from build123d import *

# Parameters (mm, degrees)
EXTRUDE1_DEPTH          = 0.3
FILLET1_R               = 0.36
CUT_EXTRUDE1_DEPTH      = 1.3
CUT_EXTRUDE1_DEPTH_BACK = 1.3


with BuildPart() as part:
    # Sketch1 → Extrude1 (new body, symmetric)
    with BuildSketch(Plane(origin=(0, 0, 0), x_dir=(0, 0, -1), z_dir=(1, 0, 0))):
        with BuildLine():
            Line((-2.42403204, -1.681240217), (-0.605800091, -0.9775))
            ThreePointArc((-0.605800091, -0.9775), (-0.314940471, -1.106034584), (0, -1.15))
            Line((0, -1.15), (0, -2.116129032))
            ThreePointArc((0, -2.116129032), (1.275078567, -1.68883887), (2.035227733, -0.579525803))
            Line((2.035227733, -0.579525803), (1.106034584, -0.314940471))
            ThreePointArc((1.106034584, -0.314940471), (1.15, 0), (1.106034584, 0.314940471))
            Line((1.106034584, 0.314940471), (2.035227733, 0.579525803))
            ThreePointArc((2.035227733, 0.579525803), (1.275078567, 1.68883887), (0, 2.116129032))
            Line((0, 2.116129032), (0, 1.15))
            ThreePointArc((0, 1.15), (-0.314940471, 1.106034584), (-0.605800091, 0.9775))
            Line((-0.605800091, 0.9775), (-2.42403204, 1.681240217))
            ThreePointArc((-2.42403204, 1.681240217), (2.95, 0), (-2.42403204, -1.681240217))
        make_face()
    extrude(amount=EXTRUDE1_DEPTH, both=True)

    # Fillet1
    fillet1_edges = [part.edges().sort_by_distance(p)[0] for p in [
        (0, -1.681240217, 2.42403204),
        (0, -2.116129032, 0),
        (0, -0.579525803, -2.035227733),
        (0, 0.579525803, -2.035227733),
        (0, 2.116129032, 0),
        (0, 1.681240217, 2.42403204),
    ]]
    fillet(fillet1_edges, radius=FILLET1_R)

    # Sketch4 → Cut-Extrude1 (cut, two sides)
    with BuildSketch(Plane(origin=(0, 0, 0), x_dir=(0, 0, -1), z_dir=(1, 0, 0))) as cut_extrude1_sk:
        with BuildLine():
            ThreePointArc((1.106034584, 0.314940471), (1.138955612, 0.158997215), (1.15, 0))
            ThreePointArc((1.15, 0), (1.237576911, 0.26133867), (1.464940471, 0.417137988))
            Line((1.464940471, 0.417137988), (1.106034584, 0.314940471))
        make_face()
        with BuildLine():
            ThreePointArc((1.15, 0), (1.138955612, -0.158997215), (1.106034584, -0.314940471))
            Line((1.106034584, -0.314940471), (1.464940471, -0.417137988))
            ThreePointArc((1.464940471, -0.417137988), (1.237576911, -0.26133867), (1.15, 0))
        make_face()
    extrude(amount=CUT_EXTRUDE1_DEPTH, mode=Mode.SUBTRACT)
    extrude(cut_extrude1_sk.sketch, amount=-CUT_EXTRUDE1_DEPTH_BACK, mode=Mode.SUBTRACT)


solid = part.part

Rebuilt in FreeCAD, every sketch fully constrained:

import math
import FreeCAD as App
import Part
import Sketcher

V = App.Vector


def edges_at(feature, points):
    """Names of the edges that pass closest to the given points."""
    edges = feature.Shape.Edges
    near = lambda p: min(range(len(edges)), key=lambda i: edges[i].distToShape(Part.Vertex(*p))[0])
    return sorted({f"Edge{near(p) + 1}" for p in points})

doc = App.newDocument("Part")
params = doc.addObject("Spreadsheet::Sheet", "Params")
for row, (alias, value) in enumerate([
    ("sketch1_radius", "2.95 mm"),
    ("sketch1_radius2", "1.15 mm"),
    ("pad1_length", "0.6 mm"),
    ("fillet_radius", "0.36 mm"),
    ("sketch2_radius", "1.15 mm"),
], start=1):
    params.set(f"A{row}", alias)
    params.set(f"B{row}", "=" + value)
    params.setAlias(f"B{row}", alias)

body = doc.addObject("PartDesign::Body", "Body")

sketch1 = body.newObject("Sketcher::SketchObject", "Sketch")
sketch1.AttachmentSupport = (doc.getObject("YZ_Plane"), [""])
sketch1.MapMode = "FlatFace"
sketch1.addGeometry([
    Part.LineSegment(V(-1, 0.6, 0), V(-1.7, 2.4, 0)),
    Part.ArcOfCircle(Part.Circle(V(0, 0, 0), V(0, 0, 1), 3), math.radians(125), math.radians(415)),
    Part.LineSegment(V(1.7, 2.4, 0), V(1, 0.6, 0)),
    Part.ArcOfCircle(Part.Circle(V(0, 0, 0), V(0, 0, 1), 1.1), math.radians(0), math.radians(32)),
    Part.LineSegment(V(1.1, 0, 0), V(2.1, 0, 0)),
    Part.ArcOfCircle(Part.Circle(V(0, 0, 0), V(0, 0, 1), 2.1), math.radians(-74), math.radians(0)),
    Part.LineSegment(V(0.6, -2, 0), V(0.3, -1.1, 0)),
    Part.ArcOfCircle(Part.Circle(V(0, 0, 0), V(0, 0, 1), 1.2), math.radians(-106), math.radians(-74)),
    Part.LineSegment(V(-0.3, -1.1, 0), V(-0.6, -2, 0)),
    Part.ArcOfCircle(Part.Circle(V(0, 0, 0), V(0, 0, 1), 2.1), math.radians(180), math.radians(254)),
    Part.LineSegment(V(-2.1, 0, 0), V(-1.1, 0, 0)),
    Part.ArcOfCircle(Part.Circle(V(0, 0, 0), V(0, 0, 1), 1.1), math.radians(148), math.radians(180)),
], False)
sketch1.addConstraint([
    Sketcher.Constraint("Coincident", 0, 2, 1, 1),
    Sketcher.Constraint("Coincident", 1, 2, 2, 1),
    Sketcher.Constraint("Coincident", 2, 2, 3, 2),
    Sketcher.Constraint("Coincident", 3, 1, 4, 1),
    Sketcher.Constraint("Coincident", 4, 2, 5, 2),
    Sketcher.Constraint("Coincident", 5, 1, 6, 1),
    Sketcher.Constraint("Coincident", 6, 2, 7, 2),
    Sketcher.Constraint("Coincident", 7, 1, 8, 1),
    Sketcher.Constraint("Coincident", 8, 2, 9, 2),
    Sketcher.Constraint("Coincident", 9, 1, 10, 1),
    Sketcher.Constraint("Coincident", 10, 2, 11, 2),
    Sketcher.Constraint("Coincident", 11, 1, 0, 1),
    Sketcher.Constraint("Horizontal", 4),
    Sketcher.Constraint("Horizontal", 10),
    Sketcher.Constraint("Coincident", 1, 3, -1, 1),
    Sketcher.Constraint("Coincident", 3, 3, -1, 1),
    Sketcher.Constraint("Coincident", 5, 3, -1, 1),
    Sketcher.Constraint("Coincident", 7, 3, -1, 1),
    Sketcher.Constraint("Coincident", 9, 3, -1, 1),
    Sketcher.Constraint("Coincident", 11, 3, -1, 1),
    Sketcher.Constraint("Equal", 3, 7),
    Sketcher.Constraint("Equal", 5, 9),
    Sketcher.Constraint("Equal", 7, 11),
    Sketcher.Constraint("PointOnObject", 3, 1, -1),
    Sketcher.Constraint("PointOnObject", 9, 1, -1),
    Sketcher.Constraint("Horizontal", 0, 2, 1, 2),
    Sketcher.Constraint("Horizontal", 6, 2, 7, 1),
    Sketcher.Constraint("Horizontal", 5, 1, 8, 2),
    Sketcher.Constraint("Horizontal", 2, 2, 11, 1),
    Sketcher.Constraint("Radius", 1, 2.95),
    Sketcher.Constraint("Radius", 3, 1.15),
    Sketcher.Constraint("Radius", 5, 2.116129),
    Sketcher.Constraint("DistanceX", -1, 1, 2, 2, 0.9775),
    Sketcher.Constraint("Distance", 0, 1.949671),
    Sketcher.Constraint("DistanceX", -1, 1, 6, 2, 0.31494),
    Sketcher.Constraint("DistanceX", 8, 2, 5, 1, 1.159052),
])
sketch1.setExpression("Constraints[29]", "Params.sketch1_radius")
sketch1.setExpression("Constraints[30]", "Params.sketch1_radius2")
pad1 = body.newObject("PartDesign::Pad", "Pad")
pad1.Profile = sketch1
pad1.setExpression("Length", "Params.pad1_length")
pad1.Midplane = True
doc.recompute()

fillet = body.newObject("PartDesign::Fillet", "Fillet")
fillet.Base = (pad1, edges_at(pad1, [
    (0, -1.681, 2.424),
    (0, -2.116, 0),
    (0, -0.58, -2.035),
    (0, 0.58, -2.035),
    (0, 2.116, 0),
    (0, 1.681, 2.424),
]))
fillet.setExpression("Radius", "Params.fillet_radius")

sketch2 = body.newObject("Sketcher::SketchObject", "Sketch001")
sketch2.AttachmentSupport = (doc.getObject("YZ_Plane"), [""])
sketch2.MapMode = "FlatFace"
sketch2.addGeometry([
    Part.ArcOfCircle(Part.Circle(V(0, 0, 0), V(0, 0, 1), 1.15), math.radians(-90), math.radians(-74.11)),
    Part.ArcOfCircle(Part.Circle(V(0, -1.58, 0), V(0, 0, 1), 0.43), math.radians(16), math.radians(90)),
    Part.LineSegment(V(0.42, -1.46, 0), V(0.31, -1.11, 0)),
    Part.ArcOfCircle(Part.Circle(V(0, 0, 0), V(0, 0, 1), 1.15), math.radians(-105.89), math.radians(-90)),
    Part.LineSegment(V(-0.31, -1.11, 0), V(-0.42, -1.46, 0)),
    Part.ArcOfCircle(Part.Circle(V(0, -1.58, 0), V(0, 0, 1), 0.43), math.radians(90), math.radians(164)),
], False)
sketch2.addConstraint([
    Sketcher.Constraint("Tangent", 0, 1, 1, 2),
    Sketcher.Constraint("Tangent", 1, 1, 2, 1),
    Sketcher.Constraint("Coincident", 2, 2, 0, 2),
    Sketcher.Constraint("Coincident", 3, 1, 4, 1),
    Sketcher.Constraint("Tangent", 4, 2, 5, 2),
    Sketcher.Constraint("Tangent", 5, 1, 3, 2),
    Sketcher.Constraint("Coincident", 0, 3, -1, 1),
    Sketcher.Constraint("Coincident", 3, 3, -1, 1),
    Sketcher.Constraint("Coincident", 5, 3, 1, 3),
    Sketcher.Constraint("Equal", 0, 3),
    Sketcher.Constraint("Symmetric", 1, 1, 4, 2, -2),
    Sketcher.Constraint("Radius", 0, 1.15),
    Sketcher.Constraint("Radius", 1, 0.433719),
    Sketcher.Constraint("DistanceY", 1, 1, -1, 1, 1.46494),
])
sketch2.setExpression("Constraints[11]", "Params.sketch2_radius")
pocket1 = body.newObject("PartDesign::Pocket", "Pocket")
pocket1.Profile = sketch2
pocket1.Type = "ThroughAll"
pocket1.Midplane = True

doc.recompute()
